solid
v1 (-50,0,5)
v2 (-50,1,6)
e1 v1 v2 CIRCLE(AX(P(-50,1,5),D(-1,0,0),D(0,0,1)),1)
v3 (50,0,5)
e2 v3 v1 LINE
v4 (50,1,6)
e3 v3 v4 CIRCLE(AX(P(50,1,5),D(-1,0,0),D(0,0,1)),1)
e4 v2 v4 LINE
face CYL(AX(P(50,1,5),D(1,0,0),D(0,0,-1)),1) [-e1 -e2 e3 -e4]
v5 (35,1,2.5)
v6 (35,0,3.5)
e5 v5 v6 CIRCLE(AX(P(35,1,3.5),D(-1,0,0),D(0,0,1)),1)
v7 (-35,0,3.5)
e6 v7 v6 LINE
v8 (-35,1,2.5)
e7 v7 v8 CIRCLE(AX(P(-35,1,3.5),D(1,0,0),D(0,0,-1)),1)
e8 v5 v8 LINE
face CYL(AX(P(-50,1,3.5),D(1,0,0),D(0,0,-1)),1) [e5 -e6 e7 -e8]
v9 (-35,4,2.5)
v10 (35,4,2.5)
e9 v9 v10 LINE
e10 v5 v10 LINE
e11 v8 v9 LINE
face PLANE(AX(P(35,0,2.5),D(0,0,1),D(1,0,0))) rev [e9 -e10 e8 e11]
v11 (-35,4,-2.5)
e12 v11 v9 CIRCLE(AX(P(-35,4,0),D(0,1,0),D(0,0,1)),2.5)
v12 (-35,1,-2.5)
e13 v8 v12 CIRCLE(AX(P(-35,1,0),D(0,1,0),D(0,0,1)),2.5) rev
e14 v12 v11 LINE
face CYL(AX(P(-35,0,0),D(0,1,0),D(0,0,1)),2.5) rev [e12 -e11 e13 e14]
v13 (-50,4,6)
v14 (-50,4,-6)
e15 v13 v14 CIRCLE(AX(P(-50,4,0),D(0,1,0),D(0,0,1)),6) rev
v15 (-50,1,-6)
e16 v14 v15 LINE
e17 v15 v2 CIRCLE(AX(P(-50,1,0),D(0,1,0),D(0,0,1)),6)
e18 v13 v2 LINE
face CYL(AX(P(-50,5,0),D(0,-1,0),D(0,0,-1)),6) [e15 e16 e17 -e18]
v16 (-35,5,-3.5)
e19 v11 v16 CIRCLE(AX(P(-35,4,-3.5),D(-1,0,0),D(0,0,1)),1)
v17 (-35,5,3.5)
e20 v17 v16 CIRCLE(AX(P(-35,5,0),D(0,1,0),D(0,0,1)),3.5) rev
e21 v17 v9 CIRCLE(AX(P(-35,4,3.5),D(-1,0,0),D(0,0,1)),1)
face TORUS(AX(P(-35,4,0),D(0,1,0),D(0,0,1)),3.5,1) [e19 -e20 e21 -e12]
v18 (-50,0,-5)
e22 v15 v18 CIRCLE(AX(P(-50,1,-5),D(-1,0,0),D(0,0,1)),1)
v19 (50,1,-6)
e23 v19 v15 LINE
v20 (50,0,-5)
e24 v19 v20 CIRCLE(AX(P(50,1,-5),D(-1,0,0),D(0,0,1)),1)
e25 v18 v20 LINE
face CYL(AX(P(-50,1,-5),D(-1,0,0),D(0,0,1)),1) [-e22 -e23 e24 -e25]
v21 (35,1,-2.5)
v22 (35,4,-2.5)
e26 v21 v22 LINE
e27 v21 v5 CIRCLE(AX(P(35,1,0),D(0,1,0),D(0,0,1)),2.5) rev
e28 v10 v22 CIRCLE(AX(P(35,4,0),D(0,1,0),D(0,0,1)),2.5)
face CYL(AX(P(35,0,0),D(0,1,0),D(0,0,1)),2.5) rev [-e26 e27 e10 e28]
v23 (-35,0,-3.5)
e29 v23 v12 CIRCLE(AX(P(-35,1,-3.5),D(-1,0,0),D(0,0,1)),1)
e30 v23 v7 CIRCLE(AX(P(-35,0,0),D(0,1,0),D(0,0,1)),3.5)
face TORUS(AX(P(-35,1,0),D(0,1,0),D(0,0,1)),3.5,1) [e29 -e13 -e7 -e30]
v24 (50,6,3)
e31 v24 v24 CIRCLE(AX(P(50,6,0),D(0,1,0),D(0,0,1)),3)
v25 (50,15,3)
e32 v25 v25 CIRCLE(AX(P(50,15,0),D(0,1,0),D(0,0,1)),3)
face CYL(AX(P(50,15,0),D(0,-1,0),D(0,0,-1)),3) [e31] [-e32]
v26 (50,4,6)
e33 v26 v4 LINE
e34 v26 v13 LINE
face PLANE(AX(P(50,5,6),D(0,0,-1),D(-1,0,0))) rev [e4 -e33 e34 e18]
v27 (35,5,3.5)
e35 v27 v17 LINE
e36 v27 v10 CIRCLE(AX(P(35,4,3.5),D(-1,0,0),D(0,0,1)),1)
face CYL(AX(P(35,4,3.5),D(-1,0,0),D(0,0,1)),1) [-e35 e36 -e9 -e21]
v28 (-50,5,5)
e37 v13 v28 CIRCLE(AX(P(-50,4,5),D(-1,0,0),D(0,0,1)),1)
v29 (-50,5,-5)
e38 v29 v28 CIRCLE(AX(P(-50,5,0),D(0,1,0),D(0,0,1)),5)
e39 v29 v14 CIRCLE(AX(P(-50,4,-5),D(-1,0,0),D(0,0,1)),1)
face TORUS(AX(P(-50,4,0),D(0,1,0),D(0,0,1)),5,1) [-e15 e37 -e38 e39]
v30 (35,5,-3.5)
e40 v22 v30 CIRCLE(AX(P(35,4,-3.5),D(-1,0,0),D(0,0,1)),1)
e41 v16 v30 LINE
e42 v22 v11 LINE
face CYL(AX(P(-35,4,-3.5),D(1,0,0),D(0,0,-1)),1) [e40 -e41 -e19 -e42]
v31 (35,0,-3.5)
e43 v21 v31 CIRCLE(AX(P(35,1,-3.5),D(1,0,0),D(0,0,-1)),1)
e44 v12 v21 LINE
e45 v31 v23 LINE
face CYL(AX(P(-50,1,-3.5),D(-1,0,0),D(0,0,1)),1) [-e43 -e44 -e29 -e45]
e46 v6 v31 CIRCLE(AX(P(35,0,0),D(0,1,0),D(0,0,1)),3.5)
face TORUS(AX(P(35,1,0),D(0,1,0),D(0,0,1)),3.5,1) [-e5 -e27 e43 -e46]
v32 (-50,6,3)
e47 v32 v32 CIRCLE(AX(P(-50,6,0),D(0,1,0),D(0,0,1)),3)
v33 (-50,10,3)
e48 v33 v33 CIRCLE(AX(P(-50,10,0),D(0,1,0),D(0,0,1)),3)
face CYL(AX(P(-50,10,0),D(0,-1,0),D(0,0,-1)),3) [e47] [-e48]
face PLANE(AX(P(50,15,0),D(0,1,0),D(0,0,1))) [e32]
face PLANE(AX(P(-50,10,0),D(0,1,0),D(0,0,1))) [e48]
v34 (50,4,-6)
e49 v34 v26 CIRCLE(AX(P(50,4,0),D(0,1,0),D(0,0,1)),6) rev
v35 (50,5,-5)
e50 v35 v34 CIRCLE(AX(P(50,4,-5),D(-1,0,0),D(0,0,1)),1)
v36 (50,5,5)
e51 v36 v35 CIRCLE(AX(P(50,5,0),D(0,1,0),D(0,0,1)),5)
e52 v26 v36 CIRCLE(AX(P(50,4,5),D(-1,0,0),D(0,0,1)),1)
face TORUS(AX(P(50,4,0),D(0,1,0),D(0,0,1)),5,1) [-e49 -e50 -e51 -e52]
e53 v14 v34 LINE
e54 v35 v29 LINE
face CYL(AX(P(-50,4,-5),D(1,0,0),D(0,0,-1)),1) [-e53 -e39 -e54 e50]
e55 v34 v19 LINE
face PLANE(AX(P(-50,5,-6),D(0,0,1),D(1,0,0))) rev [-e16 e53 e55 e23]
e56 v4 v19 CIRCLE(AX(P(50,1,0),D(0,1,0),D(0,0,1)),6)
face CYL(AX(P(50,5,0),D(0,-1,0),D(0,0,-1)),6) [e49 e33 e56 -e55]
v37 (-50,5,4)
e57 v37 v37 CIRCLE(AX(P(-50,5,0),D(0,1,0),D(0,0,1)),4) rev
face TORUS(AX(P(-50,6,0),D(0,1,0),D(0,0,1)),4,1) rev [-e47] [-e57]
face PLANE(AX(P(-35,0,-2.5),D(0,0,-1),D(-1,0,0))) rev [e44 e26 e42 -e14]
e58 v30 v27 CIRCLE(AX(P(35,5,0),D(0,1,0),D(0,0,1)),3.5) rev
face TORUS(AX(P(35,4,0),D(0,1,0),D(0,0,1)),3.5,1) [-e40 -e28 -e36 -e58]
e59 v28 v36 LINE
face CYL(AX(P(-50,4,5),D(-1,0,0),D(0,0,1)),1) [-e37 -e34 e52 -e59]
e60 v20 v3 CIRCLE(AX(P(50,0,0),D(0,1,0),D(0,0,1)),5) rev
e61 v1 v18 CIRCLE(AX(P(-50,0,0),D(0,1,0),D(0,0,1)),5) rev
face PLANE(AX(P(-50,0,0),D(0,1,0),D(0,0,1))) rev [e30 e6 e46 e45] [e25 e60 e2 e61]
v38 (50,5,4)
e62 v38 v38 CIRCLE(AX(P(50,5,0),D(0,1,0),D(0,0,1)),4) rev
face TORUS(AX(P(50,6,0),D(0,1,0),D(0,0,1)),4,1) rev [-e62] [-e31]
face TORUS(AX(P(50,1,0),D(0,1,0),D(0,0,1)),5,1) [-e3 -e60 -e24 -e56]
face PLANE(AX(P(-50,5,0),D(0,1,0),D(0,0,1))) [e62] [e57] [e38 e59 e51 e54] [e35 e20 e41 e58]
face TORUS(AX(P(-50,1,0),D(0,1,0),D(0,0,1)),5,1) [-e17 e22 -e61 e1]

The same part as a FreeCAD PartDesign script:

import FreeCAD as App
import Part
import Sketcher
from FreeCAD import Vector


def edges_at(feature, points):
    """Names of the edges that pass closest to the given points."""
    edges = feature.Shape.Edges
    near = lambda p: min(range(len(edges)), key=lambda i: edges[i].distToShape(Part.Vertex(*p))[0])
    return sorted({f"Edge{near(p) + 1}" for p in points})

doc = App.newDocument("Part")
body = doc.addObject("PartDesign::Body", "Body")

# Sketch on XZ plane
sketch1 = body.newObject("Sketcher::SketchObject", "Sketch")
sketch1.AttachmentSupport = (doc.getObject("XZ_Plane"), [""])
sketch1.MapMode = "FlatFace"
sketch1.addGeometry(Part.Circle(Vector(-50, 0, 0), Vector(0, 0, 1), 6), False)
sketch1.addConstraint(Sketcher.Constraint("PointOnObject", 0, 3, -1))
sketch1.addConstraint(Sketcher.Constraint("Diameter", 0, 12.0))
sketch1.addConstraint(Sketcher.Constraint("DistanceX", 0, 3, -1, 1, 50.0))
pad1 = body.newObject("PartDesign::Pad", "Pad")
pad1.Profile = sketch1
pad1.Length = 5
pad1.Reversed = True
body2 = doc.addObject("PartDesign::Body", "Body001")

# Sketch on XZ plane
sketch2 = body2.newObject("Sketcher::SketchObject", "Sketch001")
sketch2.AttachmentSupport = (doc.getObject("XZ_Plane001"), [""])
sketch2.MapMode = "FlatFace"
sketch2.addGeometry(Part.Circle(Vector(50, 0, 0), Vector(0, 0, 1), 6), False)
sketch2.addConstraint(Sketcher.Constraint("PointOnObject", 0, 3, -1))
sketch2.addConstraint(Sketcher.Constraint("Diameter", 0, 12.0))
sketch2.addConstraint(Sketcher.Constraint("DistanceX", -1, 1, 0, 3, 50.0))
pad2 = body2.newObject("PartDesign::Pad", "Pad001")
pad2.Profile = sketch2
pad2.Length = 5
pad2.Reversed = True
body.AllowCompound = True
doc.recompute()

boolean = body.newObject("PartDesign::Boolean", "Boolean")
boolean.Type = "Fuse"
boolean.addObjects([body2])

# Sketch on XZ plane
sketch3 = body.newObject("Sketcher::SketchObject", "Sketch002")
sketch3.AttachmentSupport = (doc.getObject("XZ_Plane"), [""])
sketch3.MapMode = "FlatFace"
sketch3.addGeometry(Part.LineSegment(Vector(-50, -6, 0), Vector(-50, 6, 0)), False)
sketch3.addGeometry(Part.LineSegment(Vector(-50, 6, 0), Vector(50, 6, 0)), False)
sketch3.addGeometry(Part.LineSegment(Vector(50, 6, 0), Vector(50, -6, 0)), False)
sketch3.addGeometry(Part.LineSegment(Vector(50, -6, 0), Vector(-50, -6, 0)), False)
sketch3.addConstraint(Sketcher.Constraint("Coincident", 0, 2, 1, 1))
sketch3.addConstraint(Sketcher.Constraint("Coincident", 1, 2, 2, 1))
sketch3.addConstraint(Sketcher.Constraint("Coincident", 2, 2, 3, 1))
sketch3.addConstraint(Sketcher.Constraint("Coincident", 3, 2, 0, 1))
sketch3.addConstraint(Sketcher.Constraint("Vertical", 0))
sketch3.addConstraint(Sketcher.Constraint("Horizontal", 1))
sketch3.addConstraint(Sketcher.Constraint("Vertical", 2))
sketch3.addConstraint(Sketcher.Constraint("Horizontal", 3))
sketch3.addConstraint(Sketcher.Constraint("Symmetric", 0, 2, 2, 2, -1, 1))
sketch3.addConstraint(Sketcher.Constraint("DistanceX", 1, 1, 1, 2, 100.0))
sketch3.addConstraint(Sketcher.Constraint("DistanceY", 0, 1, 0, 2, 12.0))
pad3 = body.newObject("PartDesign::Pad", "Pad002")
pad3.Profile = sketch3
pad3.Length = 5
pad3.Reversed = True

# Sketch on XZ plane
sketch4 = body.newObject("Sketcher::SketchObject", "Sketch003")
sketch4.AttachmentSupport = (doc.getObject("XZ_Plane"), [""])
sketch4.MapMode = "FlatFace"
sketch4.AttachmentOffset = App.Placement(Vector(0, 0, -5), App.Rotation())
sketch4.addGeometry(Part.Circle(Vector(-35, 0, 0), Vector(0, 0, 1), 2.5), False)
sketch4.addGeometry(Part.Circle(Vector(35, 0, 0), Vector(0, 0, 1), 2.5), False)
sketch4.addConstraint(Sketcher.Constraint("Equal", 0, 1))
sketch4.addConstraint(Sketcher.Constraint("Symmetric", 0, 3, 1, 3, -1, 1))
sketch4.addConstraint(Sketcher.Constraint("PointOnObject", 0, 3, -1))
sketch4.addConstraint(Sketcher.Constraint("Diameter", 0, 5.0))
sketch4.addConstraint(Sketcher.Constraint("DistanceX", 0, 3, -1, 1, 35.0))
pocket1 = body.newObject("PartDesign::Pocket", "Pocket")
pocket1.Profile = sketch4
pocket1.Type = "ThroughAll"
pocket1.Reversed = True

# Sketch on XZ plane
sketch5 = body.newObject("Sketcher::SketchObject", "Sketch004")
sketch5.AttachmentSupport = (doc.getObject("XZ_Plane"), [""])
sketch5.MapMode = "FlatFace"
sketch5.AttachmentOffset = App.Placement(Vector(0, 0, -5), App.Rotation())
sketch5.addGeometry(Part.LineSegment(Vector(-35, -2, 0), Vector(-35, 2, 0)), False)
sketch5.addGeometry(Part.LineSegment(Vector(-35, 2, 0), Vector(35, 2, 0)), False)
sketch5.addGeometry(Part.LineSegment(Vector(35, 2, 0), Vector(35, -2, 0)), False)
sketch5.addGeometry(Part.LineSegment(Vector(35, -2, 0), Vector(-35, -2, 0)), False)
sketch5.addConstraint(Sketcher.Constraint("Coincident", 0, 2, 1, 1))
sketch5.addConstraint(Sketcher.Constraint("Coincident", 1, 2, 2, 1))
sketch5.addConstraint(Sketcher.Constraint("Coincident", 2, 2, 3, 1))
sketch5.addConstraint(Sketcher.Constraint("Coincident", 3, 2, 0, 1))
sketch5.addConstraint(Sketcher.Constraint("Vertical", 0))
sketch5.addConstraint(Sketcher.Constraint("Horizontal", 1))
sketch5.addConstraint(Sketcher.Constraint("Vertical", 2))
sketch5.addConstraint(Sketcher.Constraint("Horizontal", 3))
sketch5.addConstraint(Sketcher.Constraint("Symmetric", 0, 2, 2, 2, -1, 1))
sketch5.addConstraint(Sketcher.Constraint("DistanceX", 1, 1, 1, 2, 70.0))
sketch5.addConstraint(Sketcher.Constraint("DistanceY", 0, 1, 0, 2, 5.0))
pocket2 = body.newObject("PartDesign::Pocket", "Pocket001")
pocket2.Profile = sketch5
pocket2.Type = "ThroughAll"
pocket2.Reversed = True

# Sketch on XZ plane
sketch6 = body.newObject("Sketcher::SketchObject", "Sketch005")
sketch6.AttachmentSupport = (doc.getObject("XZ_Plane"), [""])
sketch6.MapMode = "FlatFace"
sketch6.AttachmentOffset = App.Placement(Vector(0, 0, -5), App.Rotation())
sketch6.addGeometry(Part.Circle(Vector(-50, 0, 0), Vector(0, 0, 1), 3), False)
sketch6.addConstraint(Sketcher.Constraint("PointOnObject", 0, 3, -1))
sketch6.addConstraint(Sketcher.Constraint("Diameter", 0, 6.0))
sketch6.addConstraint(Sketcher.Constraint("DistanceX", 0, 3, -1, 1, 50.0))
pad4 = body.newObject("PartDesign::Pad", "Pad003")
pad4.Profile = sketch6
pad4.Length = 5
pad4.Reversed = True

# Sketch on XZ plane
sketch7 = body.newObject("Sketcher::SketchObject", "Sketch006")
sketch7.AttachmentSupport = (doc.getObject("XZ_Plane"), [""])
sketch7.MapMode = "FlatFace"
sketch7.AttachmentOffset = App.Placement(Vector(0, 0, -5), App.Rotation())
sketch7.addGeometry(Part.Circle(Vector(50, 0, 0), Vector(0, 0, 1), 3), False)
sketch7.addConstraint(Sketcher.Constraint("PointOnObject", 0, 3, -1))
sketch7.addConstraint(Sketcher.Constraint("Diameter", 0, 6.0))
sketch7.addConstraint(Sketcher.Constraint("DistanceX", -1, 1, 0, 3, 50.0))
pad5 = body.newObject("PartDesign::Pad", "Pad004")
pad5.Profile = sketch7
pad5.Length = 10
pad5.Reversed = True
doc.recompute()

fillet = body.newObject("PartDesign::Fillet", "Fillet")
fillet.Base = (pad5, edges_at(pad5, [(-53, 5, 0), (47, 5, 0)]))
fillet.Radius = 1
doc.recompute()

fillet2 = body.newObject("PartDesign::Fillet", "Fillet001")
fillet2.Base = (fillet, edges_at(fillet, [
    (0, 5, 6),
    (56, 0, 0),
    (56, 5, 0),
    (37.5, 0, 0),
    (37.5, 5, 0),
    (-37.5, 0, 0),
    (-37.5, 5, 0),
    (0, 5, -2.5),
    (0, 5, 2.5),
    (0, 0, -2.5),
    (0, 0, 2.5),
    (-56, 0, 0),
    (-56, 5, 0),
    (0, 0, 6),
    (0, 0, -6),
    (0, 5, -6),
]))
fillet2.Radius = 1

doc.recompute()
